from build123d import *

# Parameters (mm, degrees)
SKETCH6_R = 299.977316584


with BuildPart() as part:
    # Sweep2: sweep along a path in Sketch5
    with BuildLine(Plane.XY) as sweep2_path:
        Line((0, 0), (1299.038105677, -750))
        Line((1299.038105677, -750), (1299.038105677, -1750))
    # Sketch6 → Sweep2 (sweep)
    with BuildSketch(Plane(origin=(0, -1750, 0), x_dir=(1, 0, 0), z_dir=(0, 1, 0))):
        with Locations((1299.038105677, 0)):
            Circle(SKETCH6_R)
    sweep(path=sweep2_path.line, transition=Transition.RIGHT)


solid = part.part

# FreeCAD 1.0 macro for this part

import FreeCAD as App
import Part
import Sketcher

V = App.Vector
Q = App.Units.Quantity

doc = App.newDocument("Part")
params = doc.addObject("Spreadsheet::Sheet", "Params")
for row, (alias, value) in enumerate([
    ("sketch2_height", "1000 mm"),
    ("sketch2_length", "1500 mm"),
], start=1):
    params.set(f"A{row}", alias)
    params.set(f"B{row}", "=" + value)
    params.setAlias(f"B{row}", alias)

body = doc.addObject("PartDesign::Body", "Body")

sketch1 = doc.addObject("Sketcher::SketchObject", "Sketch")
body.addObject(sketch1)
sketch1.AttachmentSupport = (doc.XZ_Plane, [""])
sketch1.MapMode = "FlatFace"
sketch1.AttachmentOffset = App.Placement(V(0, 0, 1750), App.Rotation())
sketch1.addGeometry(Part.Circle(V(1299, 0, 0), V(0, 0, 1), 300), False)
sketch1.addConstraint([
    Sketcher.Constraint("PointOnObject", 0, 3, -1),
    Sketcher.Constraint("Diameter", 0, Q("599.954633 mm")),
    Sketcher.Constraint("DistanceX", -1, 1, 0, 3, Q("1299.038106 mm")),
])

sketch2 = doc.addObject("Sketcher::SketchObject", "Sketch001")
body.addObject(sketch2)
sketch2.AttachmentSupport = (doc.XY_Plane, [""])
sketch2.MapMode = "FlatFace"
sketch2.addGeometry([
    Part.LineSegment(V(0, 0, 0), V(1299, -750, 0)),
    Part.LineSegment(V(1299, -750, 0), V(1299, -1750, 0)),
], False)
sketch2.addConstraint([
    Sketcher.Constraint("Coincident", 0, 2, 1, 1),
    Sketcher.Constraint("Vertical", 1),
    Sketcher.Constraint("Coincident", 0, 1, -1, 1),
    Sketcher.Constraint("DistanceY", 1, 2, 1, 1, Q("1000 mm")),
    Sketcher.Constraint("Angle", 0, Q("-30 deg")),
    Sketcher.Constraint("Distance", 0, Q("1500 mm")),
])
sketch2.setExpression("Constraints[3]", "Params.sketch2_height")
sketch2.setExpression("Constraints[5]", "Params.sketch2_length")
doc.recompute()

additivepipe = doc.addObject("PartDesign::AdditivePipe", "AdditivePipe")
body.addObject(additivepipe)
additivepipe.Profile = sketch1
additivepipe.Spine = (sketch2, ["Edge1", "Edge2"])
additivepipe.Transition = "Right corner"

doc.recompute()
